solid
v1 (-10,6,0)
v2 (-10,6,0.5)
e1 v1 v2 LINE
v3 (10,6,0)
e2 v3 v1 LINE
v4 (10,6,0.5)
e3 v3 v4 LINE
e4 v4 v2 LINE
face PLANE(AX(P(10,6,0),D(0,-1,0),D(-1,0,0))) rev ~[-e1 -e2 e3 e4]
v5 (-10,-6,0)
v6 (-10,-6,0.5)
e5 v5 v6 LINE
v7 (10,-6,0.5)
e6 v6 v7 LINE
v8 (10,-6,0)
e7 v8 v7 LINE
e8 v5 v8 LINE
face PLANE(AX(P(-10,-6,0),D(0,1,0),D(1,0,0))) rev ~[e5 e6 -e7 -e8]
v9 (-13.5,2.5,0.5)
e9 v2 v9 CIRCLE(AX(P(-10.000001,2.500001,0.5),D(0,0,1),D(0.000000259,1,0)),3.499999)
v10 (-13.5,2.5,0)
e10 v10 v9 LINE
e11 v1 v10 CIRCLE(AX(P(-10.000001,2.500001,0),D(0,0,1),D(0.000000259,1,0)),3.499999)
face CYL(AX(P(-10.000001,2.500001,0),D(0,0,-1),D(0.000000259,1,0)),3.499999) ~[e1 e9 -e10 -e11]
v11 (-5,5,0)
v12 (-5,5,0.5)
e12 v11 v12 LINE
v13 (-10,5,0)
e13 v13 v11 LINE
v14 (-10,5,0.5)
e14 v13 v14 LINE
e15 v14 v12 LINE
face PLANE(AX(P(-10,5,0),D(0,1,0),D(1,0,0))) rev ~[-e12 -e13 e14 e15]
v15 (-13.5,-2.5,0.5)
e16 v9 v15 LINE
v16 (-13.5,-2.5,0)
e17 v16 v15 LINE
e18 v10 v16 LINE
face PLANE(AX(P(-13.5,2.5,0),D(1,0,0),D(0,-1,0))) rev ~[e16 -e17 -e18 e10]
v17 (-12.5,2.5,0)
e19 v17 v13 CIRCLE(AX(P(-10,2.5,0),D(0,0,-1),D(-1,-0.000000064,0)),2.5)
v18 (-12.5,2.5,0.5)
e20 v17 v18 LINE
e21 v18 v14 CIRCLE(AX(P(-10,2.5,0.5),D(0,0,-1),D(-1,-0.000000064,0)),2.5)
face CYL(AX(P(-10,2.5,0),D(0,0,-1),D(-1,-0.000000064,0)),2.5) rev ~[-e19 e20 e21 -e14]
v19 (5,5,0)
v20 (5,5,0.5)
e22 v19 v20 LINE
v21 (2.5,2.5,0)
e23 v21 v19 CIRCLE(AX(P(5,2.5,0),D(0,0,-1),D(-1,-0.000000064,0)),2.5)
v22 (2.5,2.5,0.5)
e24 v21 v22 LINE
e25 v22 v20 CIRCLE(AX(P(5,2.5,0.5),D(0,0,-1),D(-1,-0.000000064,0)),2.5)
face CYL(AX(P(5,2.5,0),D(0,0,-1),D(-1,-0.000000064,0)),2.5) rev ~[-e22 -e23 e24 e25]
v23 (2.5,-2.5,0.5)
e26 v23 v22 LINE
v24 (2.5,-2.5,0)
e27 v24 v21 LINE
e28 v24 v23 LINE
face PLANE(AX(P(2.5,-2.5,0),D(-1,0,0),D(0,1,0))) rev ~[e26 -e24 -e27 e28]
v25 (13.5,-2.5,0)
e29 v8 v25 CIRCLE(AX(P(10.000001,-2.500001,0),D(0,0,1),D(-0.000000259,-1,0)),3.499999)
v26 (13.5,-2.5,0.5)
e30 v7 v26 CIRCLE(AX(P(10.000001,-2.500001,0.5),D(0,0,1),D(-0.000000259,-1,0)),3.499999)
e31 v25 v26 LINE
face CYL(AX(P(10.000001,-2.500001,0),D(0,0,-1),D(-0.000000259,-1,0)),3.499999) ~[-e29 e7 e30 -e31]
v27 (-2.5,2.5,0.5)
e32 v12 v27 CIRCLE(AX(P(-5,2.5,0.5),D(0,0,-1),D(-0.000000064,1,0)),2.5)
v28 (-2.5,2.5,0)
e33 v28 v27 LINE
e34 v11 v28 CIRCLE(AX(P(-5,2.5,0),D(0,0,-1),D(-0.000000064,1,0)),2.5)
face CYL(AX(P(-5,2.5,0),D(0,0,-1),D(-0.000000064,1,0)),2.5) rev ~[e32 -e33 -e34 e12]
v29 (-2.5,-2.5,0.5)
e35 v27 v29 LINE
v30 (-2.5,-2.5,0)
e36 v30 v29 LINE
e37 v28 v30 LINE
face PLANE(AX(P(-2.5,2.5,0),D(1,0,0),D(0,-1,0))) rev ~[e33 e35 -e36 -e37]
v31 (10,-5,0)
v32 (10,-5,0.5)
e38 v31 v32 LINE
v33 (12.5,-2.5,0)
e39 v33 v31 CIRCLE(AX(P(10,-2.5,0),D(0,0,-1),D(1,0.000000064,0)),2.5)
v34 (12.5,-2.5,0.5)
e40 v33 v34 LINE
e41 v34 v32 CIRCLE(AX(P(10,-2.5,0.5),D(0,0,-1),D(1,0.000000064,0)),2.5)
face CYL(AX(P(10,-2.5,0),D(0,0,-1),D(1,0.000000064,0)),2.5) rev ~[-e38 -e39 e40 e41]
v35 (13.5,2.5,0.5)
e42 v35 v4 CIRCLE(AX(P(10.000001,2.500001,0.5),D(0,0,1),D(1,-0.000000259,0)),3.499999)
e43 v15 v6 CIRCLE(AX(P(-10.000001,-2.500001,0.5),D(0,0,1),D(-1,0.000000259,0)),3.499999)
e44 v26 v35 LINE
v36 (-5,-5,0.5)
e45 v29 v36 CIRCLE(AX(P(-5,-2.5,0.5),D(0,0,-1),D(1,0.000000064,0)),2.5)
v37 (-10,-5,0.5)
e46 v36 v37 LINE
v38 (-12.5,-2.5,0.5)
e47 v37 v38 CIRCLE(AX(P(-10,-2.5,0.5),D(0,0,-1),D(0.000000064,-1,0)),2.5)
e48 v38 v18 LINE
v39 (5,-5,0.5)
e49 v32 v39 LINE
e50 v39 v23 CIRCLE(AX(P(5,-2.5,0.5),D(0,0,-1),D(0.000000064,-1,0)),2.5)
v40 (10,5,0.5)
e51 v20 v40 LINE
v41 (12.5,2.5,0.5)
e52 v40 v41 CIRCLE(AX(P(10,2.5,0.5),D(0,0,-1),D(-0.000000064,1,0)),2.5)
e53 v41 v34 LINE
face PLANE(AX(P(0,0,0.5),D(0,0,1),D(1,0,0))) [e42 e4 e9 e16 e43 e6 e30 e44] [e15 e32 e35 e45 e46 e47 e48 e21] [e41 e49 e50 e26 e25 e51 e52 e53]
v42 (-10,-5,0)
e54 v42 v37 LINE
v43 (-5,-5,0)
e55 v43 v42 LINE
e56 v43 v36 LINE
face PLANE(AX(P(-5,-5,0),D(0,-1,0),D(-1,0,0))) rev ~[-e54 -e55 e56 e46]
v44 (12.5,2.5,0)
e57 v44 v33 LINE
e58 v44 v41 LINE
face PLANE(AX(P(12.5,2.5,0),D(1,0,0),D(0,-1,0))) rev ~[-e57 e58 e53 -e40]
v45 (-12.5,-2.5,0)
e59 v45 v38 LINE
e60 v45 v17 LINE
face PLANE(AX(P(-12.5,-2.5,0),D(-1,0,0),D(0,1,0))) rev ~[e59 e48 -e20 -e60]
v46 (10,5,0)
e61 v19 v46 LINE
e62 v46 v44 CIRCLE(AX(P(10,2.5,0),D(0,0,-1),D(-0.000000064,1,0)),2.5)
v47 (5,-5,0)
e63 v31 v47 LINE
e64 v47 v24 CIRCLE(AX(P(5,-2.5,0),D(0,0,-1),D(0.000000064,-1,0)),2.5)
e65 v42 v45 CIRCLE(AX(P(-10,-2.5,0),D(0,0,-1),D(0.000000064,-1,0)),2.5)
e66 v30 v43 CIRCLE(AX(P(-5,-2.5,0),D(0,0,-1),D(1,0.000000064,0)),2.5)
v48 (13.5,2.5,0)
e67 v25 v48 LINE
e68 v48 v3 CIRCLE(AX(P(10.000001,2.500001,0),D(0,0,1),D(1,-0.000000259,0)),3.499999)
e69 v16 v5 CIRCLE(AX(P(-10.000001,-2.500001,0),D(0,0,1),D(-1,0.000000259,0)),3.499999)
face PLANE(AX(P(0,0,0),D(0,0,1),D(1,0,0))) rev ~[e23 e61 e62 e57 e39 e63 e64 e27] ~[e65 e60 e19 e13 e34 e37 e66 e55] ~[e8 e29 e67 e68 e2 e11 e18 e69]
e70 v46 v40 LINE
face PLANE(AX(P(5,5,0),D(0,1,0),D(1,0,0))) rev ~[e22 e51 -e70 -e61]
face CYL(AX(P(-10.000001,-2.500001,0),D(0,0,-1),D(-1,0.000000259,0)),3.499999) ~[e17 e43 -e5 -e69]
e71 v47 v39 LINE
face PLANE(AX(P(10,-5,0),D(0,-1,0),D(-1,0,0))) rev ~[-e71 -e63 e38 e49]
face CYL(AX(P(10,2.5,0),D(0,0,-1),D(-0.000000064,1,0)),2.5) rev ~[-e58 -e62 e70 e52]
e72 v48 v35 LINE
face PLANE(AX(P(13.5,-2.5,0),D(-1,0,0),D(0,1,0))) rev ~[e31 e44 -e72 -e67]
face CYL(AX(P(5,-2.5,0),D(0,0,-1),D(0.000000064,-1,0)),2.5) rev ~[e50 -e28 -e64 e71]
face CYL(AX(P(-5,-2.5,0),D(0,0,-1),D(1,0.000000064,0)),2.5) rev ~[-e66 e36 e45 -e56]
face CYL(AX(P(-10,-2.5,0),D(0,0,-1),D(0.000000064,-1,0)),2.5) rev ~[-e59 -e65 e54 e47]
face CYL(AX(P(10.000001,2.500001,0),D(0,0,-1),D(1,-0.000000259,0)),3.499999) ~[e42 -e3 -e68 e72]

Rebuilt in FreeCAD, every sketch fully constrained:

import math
import FreeCAD as App
import Part
import Sketcher

V = App.Vector
Q = App.Units.Quantity

doc = App.newDocument("Part")
params = doc.addObject("Spreadsheet::Sheet", "Params")
for row, (alias, value) in enumerate([
    ("sketch1_radius", "3.499999 mm"),
    ("sketch1_radius2", "2.5 mm"),
    ("sketch1_width", "20 mm"),
    ("sketch1_width2", "5 mm"),
    ("pad1_length", "0.5 mm"),
], start=1):
    params.set(f"A{row}", alias)
    params.set(f"B{row}", "=" + value)
    params.setAlias(f"B{row}", alias)

body = doc.addObject("PartDesign::Body", "Body")

sketch1 = doc.addObject("Sketcher::SketchObject", "Sketch")
body.addObject(sketch1)
sketch1.AttachmentSupport = (doc.XY_Plane, [""])
sketch1.MapMode = "FlatFace"
sketch1.addGeometry(Part.LineSegment(V(-13.5, 2.5, 0), V(-13.5, -2.5, 0)), False)
sketch1.addGeometry(Part.ArcOfCircle(Part.Circle(V(-10, -2.5, 0), V(0, 0, 1), 3.5), math.radians(180), math.radians(270)), False)
sketch1.addGeometry(Part.LineSegment(V(-10, -6, 0), V(10, -6, 0)), False)
sketch1.addGeometry(Part.ArcOfCircle(Part.Circle(V(10, -2.5, 0), V(0, 0, 1), 3.5), math.radians(-90), math.radians(0)), False)
sketch1.addGeometry(Part.LineSegment(V(13.5, -2.5, 0), V(13.5, 2.5, 0)), False)
sketch1.addGeometry(Part.ArcOfCircle(Part.Circle(V(10, 2.5, 0), V(0, 0, 1), 3.5), math.radians(0), math.radians(90)), False)
sketch1.addGeometry(Part.LineSegment(V(10, 6, 0), V(-10, 6, 0)), False)
sketch1.addGeometry(Part.ArcOfCircle(Part.Circle(V(-10, 2.5, 0), V(0, 0, 1), 3.5), math.radians(90), math.radians(180)), False)
sketch1.addGeometry(Part.ArcOfCircle(Part.Circle(V(-5, 2.5, 0), V(0, 0, 1), 2.5), math.radians(0), math.radians(90)), False)
sketch1.addGeometry(Part.LineSegment(V(-2.5, 2.5, 0), V(-2.5, -2.5, 0)), False)
sketch1.addGeometry(Part.ArcOfCircle(Part.Circle(V(-5, -2.5, 0), V(0, 0, 1), 2.5), math.radians(-90), math.radians(0)), False)
sketch1.addGeometry(Part.LineSegment(V(-5, -5, 0), V(-10, -5, 0)), False)
sketch1.addGeometry(Part.ArcOfCircle(Part.Circle(V(-10, -2.5, 0), V(0, 0, 1), 2.5), math.radians(180), math.radians(270)), False)
sketch1.addGeometry(Part.LineSegment(V(-12.5, -2.5, 0), V(-12.5, 2.5, 0)), False)
sketch1.addGeometry(Part.ArcOfCircle(Part.Circle(V(-10, 2.5, 0), V(0, 0, 1), 2.5), math.radians(90), math.radians(180)), False)
sketch1.addGeometry(Part.LineSegment(V(-10, 5, 0), V(-5, 5, 0)), False)
sketch1.addGeometry(Part.ArcOfCircle(Part.Circle(V(5, -2.5, 0), V(0, 0, 1), 2.5), math.radians(180), math.radians(270)), False)
sketch1.addGeometry(Part.LineSegment(V(2.5, -2.5, 0), V(2.5, 2.5, 0)), False)
sketch1.addGeometry(Part.ArcOfCircle(Part.Circle(V(5, 2.5, 0), V(0, 0, 1), 2.5), math.radians(90), math.radians(180)), False)
sketch1.addGeometry(Part.LineSegment(V(5, 5, 0), V(10, 5, 0)), False)
sketch1.addGeometry(Part.ArcOfCircle(Part.Circle(V(10, 2.5, 0), V(0, 0, 1), 2.5), math.radians(0), math.radians(90)), False)
sketch1.addGeometry(Part.LineSegment(V(12.5, 2.5, 0), V(12.5, -2.5, 0)), False)
sketch1.addGeometry(Part.ArcOfCircle(Part.Circle(V(10, -2.5, 0), V(0, 0, 1), 2.5), math.radians(-90), math.radians(0)), False)
sketch1.addGeometry(Part.LineSegment(V(10, -5, 0), V(5, -5, 0)), False)
sketch1.addConstraint(Sketcher.Constraint("Tangent", 0, 2, 1, 1))
sketch1.addConstraint(Sketcher.Constraint("Tangent", 1, 2, 2, 1))
sketch1.addConstraint(Sketcher.Constraint("Tangent", 2, 2, 3, 1))
sketch1.addConstraint(Sketcher.Constraint("Tangent", 3, 2, 4, 1))
sketch1.addConstraint(Sketcher.Constraint("Tangent", 4, 2, 5, 1))
sketch1.addConstraint(Sketcher.Constraint("Tangent", 5, 2, 6, 1))
sketch1.addConstraint(Sketcher.Constraint("Tangent", 6, 2, 7, 1))
sketch1.addConstraint(Sketcher.Constraint("Tangent", 7, 2, 0, 1))
sketch1.addConstraint(Sketcher.Constraint("Tangent", 8, 1, 9, 1))
sketch1.addConstraint(Sketcher.Constraint("Tangent", 9, 2, 10, 2))
sketch1.addConstraint(Sketcher.Constraint("Tangent", 10, 1, 11, 1))
sketch1.addConstraint(Sketcher.Constraint("Tangent", 11, 2, 12, 2))
sketch1.addConstraint(Sketcher.Constraint("Tangent", 12, 1, 13, 1))
sketch1.addConstraint(Sketcher.Constraint("Tangent", 13, 2, 14, 2))
sketch1.addConstraint(Sketcher.Constraint("Tangent", 14, 1, 15, 1))
sketch1.addConstraint(Sketcher.Constraint("Tangent", 15, 2, 8, 2))
sketch1.addConstraint(Sketcher.Constraint("Tangent", 16, 1, 17, 1))
sketch1.addConstraint(Sketcher.Constraint("Tangent", 17, 2, 18, 2))
sketch1.addConstraint(Sketcher.Constraint("Tangent", 18, 1, 19, 1))
sketch1.addConstraint(Sketcher.Constraint("Tangent", 19, 2, 20, 2))
sketch1.addConstraint(Sketcher.Constraint("Tangent", 20, 1, 21, 1))
sketch1.addConstraint(Sketcher.Constraint("Tangent", 21, 2, 22, 2))
sketch1.addConstraint(Sketcher.Constraint("Tangent", 22, 1, 23, 1))
sketch1.addConstraint(Sketcher.Constraint("Tangent", 23, 2, 16, 2))
sketch1.addConstraint(Sketcher.Constraint("Vertical", 0))
sketch1.addConstraint(Sketcher.Constraint("Horizontal", 2))
sketch1.addConstraint(Sketcher.Constraint("Vertical", 4))
sketch1.addConstraint(Sketcher.Constraint("Horizontal", 6))
sketch1.addConstraint(Sketcher.Constraint("Vertical", 9))
sketch1.addConstraint(Sketcher.Constraint("Horizontal", 11))
sketch1.addConstraint(Sketcher.Constraint("Vertical", 13))
sketch1.addConstraint(Sketcher.Constraint("Horizontal", 15))
sketch1.addConstraint(Sketcher.Constraint("Vertical", 17))
sketch1.addConstraint(Sketcher.Constraint("Horizontal", 19))
sketch1.addConstraint(Sketcher.Constraint("Vertical", 21))
sketch1.addConstraint(Sketcher.Constraint("Horizontal", 23))
sketch1.addConstraint(Sketcher.Constraint("Coincident", 12, 3, 1, 3))
sketch1.addConstraint(Sketcher.Constraint("Coincident", 14, 3, 7, 3))
sketch1.addConstraint(Sketcher.Constraint("Coincident", 20, 3, 5, 3))
sketch1.addConstraint(Sketcher.Constraint("Coincident", 22, 3, 3, 3))
sketch1.addConstraint(Sketcher.Constraint("Equal", 1, 3))
sketch1.addConstraint(Sketcher.Constraint("Equal", 3, 5))
sketch1.addConstraint(Sketcher.Constraint("Equal", 5, 7))
sketch1.addConstraint(Sketcher.Constraint("Equal", 8, 10))
sketch1.addConstraint(Sketcher.Constraint("Equal", 10, 12))
sketch1.addConstraint(Sketcher.Constraint("Equal", 14, 16))
sketch1.addConstraint(Sketcher.Constraint("Equal", 16, 18))
sketch1.addConstraint(Sketcher.Constraint("Equal", 18, 20))
sketch1.addConstraint(Sketcher.Constraint("Symmetric", 1, 3, 5, 3, -1, 1))
sketch1.addConstraint(Sketcher.Constraint("Equal", 15, 19))
sketch1.addConstraint(Sketcher.Constraint("Equal", 23, 0))
sketch1.addConstraint(Sketcher.Constraint("Radius", 1, Q("3.499999 mm")))
sketch1.addConstraint(Sketcher.Constraint("Radius", 8, Q("2.5 mm")))
sketch1.addConstraint(Sketcher.Constraint("DistanceX", 2, 1, 2, 2, Q("20 mm")))
sketch1.addConstraint(Sketcher.Constraint("DistanceX", 11, 2, 11, 1, Q("5 mm")))
sketch1.setExpression("Constraints[51]", "Params.sketch1_radius")
sketch1.setExpression("Constraints[52]", "Params.sketch1_radius2")
sketch1.setExpression("Constraints[53]", "Params.sketch1_width")
sketch1.setExpression("Constraints[54]", "Params.sketch1_width2")
pad1 = doc.addObject("PartDesign::Pad", "Pad")
body.addObject(pad1)
pad1.Profile = sketch1
pad1.setExpression("Length", "Params.pad1_length")

doc.recompute()
